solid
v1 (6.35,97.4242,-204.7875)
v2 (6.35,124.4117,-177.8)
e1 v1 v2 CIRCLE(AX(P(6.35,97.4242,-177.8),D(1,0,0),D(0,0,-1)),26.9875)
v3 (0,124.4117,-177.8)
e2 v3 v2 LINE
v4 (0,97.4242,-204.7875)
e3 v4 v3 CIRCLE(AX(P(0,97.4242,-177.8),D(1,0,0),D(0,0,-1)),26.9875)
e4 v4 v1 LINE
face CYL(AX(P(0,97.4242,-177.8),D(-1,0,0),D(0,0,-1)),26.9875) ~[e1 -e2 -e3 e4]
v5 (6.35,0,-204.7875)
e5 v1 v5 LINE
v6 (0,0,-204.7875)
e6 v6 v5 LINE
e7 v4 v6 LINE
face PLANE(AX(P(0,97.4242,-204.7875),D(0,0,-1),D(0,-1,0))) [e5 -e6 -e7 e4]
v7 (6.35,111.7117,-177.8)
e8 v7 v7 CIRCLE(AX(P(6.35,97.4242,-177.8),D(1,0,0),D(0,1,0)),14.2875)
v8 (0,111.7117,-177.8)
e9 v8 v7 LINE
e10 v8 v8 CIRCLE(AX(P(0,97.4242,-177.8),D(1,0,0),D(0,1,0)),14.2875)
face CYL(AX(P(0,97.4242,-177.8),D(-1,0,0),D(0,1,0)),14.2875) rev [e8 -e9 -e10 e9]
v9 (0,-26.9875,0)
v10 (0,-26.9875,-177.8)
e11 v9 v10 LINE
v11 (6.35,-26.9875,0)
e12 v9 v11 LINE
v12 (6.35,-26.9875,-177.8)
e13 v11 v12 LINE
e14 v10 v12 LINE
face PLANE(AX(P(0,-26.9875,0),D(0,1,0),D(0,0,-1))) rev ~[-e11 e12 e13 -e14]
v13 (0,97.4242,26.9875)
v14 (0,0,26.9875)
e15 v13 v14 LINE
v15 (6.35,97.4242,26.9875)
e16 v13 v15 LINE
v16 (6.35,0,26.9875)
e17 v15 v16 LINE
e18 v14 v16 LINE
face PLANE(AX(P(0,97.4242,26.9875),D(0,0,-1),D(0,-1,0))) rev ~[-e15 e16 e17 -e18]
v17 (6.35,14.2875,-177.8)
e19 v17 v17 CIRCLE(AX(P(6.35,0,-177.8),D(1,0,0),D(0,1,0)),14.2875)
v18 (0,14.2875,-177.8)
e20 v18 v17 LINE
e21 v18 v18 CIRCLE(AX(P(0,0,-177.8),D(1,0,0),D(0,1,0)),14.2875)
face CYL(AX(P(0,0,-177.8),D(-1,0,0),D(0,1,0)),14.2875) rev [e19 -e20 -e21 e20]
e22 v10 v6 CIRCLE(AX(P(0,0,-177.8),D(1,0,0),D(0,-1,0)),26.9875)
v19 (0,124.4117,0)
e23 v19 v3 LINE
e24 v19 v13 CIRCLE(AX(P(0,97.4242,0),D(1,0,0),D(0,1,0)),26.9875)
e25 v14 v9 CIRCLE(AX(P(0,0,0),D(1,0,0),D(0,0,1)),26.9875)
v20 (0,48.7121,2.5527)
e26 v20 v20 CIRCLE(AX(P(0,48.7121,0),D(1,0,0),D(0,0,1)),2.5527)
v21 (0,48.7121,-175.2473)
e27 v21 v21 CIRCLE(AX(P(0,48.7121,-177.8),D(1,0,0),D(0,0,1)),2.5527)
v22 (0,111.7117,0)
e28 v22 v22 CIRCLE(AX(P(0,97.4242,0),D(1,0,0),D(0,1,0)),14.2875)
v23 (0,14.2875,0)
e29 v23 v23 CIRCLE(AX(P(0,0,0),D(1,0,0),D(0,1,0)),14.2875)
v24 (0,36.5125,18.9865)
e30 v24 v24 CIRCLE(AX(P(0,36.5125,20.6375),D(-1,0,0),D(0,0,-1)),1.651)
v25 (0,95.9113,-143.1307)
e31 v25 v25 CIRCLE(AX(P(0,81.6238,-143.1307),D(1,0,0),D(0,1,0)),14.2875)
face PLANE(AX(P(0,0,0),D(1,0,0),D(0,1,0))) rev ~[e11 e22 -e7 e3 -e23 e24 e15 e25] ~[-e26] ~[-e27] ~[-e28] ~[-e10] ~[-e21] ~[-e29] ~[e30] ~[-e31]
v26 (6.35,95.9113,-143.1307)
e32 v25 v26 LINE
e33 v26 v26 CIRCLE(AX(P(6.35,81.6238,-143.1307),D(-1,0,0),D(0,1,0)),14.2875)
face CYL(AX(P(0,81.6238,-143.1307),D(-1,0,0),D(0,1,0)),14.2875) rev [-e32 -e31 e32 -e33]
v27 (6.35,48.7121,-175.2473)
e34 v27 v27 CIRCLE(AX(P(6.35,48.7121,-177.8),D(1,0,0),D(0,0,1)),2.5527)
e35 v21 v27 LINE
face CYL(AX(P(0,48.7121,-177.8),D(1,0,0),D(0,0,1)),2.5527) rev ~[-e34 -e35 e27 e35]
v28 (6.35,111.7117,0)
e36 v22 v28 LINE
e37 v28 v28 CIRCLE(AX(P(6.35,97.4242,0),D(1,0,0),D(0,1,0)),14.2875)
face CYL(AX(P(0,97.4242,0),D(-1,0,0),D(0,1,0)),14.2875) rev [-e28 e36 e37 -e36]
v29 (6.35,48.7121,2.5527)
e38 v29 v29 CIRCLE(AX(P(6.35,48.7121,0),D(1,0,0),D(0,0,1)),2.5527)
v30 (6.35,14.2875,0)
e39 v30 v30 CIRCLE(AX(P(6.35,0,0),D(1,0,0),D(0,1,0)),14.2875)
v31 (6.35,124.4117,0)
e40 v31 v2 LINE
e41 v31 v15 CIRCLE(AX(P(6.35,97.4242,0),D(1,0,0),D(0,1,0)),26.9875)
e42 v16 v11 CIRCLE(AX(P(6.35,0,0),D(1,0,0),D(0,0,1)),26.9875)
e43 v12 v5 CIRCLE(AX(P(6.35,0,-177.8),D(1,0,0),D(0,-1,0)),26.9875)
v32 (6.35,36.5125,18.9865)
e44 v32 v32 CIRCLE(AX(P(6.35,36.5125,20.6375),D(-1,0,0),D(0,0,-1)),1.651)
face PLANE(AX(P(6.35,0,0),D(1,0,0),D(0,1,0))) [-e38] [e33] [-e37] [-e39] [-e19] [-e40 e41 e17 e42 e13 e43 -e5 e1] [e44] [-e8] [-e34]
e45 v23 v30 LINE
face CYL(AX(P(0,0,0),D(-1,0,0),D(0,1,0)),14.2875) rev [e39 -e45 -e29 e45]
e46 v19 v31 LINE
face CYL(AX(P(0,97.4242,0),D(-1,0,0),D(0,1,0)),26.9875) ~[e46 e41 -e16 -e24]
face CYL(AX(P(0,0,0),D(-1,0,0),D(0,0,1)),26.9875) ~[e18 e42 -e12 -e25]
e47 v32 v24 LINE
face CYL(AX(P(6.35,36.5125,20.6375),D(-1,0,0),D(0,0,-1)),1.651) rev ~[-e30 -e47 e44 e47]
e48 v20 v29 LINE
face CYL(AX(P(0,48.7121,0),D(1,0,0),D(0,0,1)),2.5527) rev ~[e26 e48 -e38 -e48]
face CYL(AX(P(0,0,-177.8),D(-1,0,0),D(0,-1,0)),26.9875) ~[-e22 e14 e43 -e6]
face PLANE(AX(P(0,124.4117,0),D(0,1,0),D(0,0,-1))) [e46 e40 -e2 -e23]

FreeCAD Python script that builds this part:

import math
import FreeCAD as App
import Part
import Sketcher
Q = App.Units.Quantity

doc = App.newDocument("Part")
body = doc.addObject("PartDesign::Body", "Body")

# Sketch on YZ plane
sketch1 = body.newObject("Sketcher::SketchObject", "Sketch")
sketch1.AttachmentSupport = (doc.getObject("YZ_Plane"), [""])
sketch1.MapMode = "FlatFace"
sketch1.addGeometry([
    Part.LineSegment(App.Vector(0, -204.7875, 0), App.Vector(97.4242, -204.7875, 0)),  # 0
    Part.ArcOfCircle(Part.Circle(App.Vector(97.4242, -177.8, 0), App.Vector(0, 0, 1), 26.9875), math.radians(-90), math.radians(0)),  # 1
    Part.LineSegment(App.Vector(124.4117, -177.8, 0), App.Vector(124.4117, 0, 0)),  # 2
    Part.ArcOfCircle(Part.Circle(App.Vector(97.4242, 0, 0), App.Vector(0, 0, 1), 26.9875), math.radians(0), math.radians(90)),  # 3
    Part.LineSegment(App.Vector(97.4242, 26.9875, 0), App.Vector(0, 26.9875, 0)),  # 4
    Part.ArcOfCircle(Part.Circle(App.Vector(0, 0, 0), App.Vector(0, 0, 1), 26.9875), math.radians(90), math.radians(180)),  # 5
    Part.LineSegment(App.Vector(-26.9875, 0, 0), App.Vector(-26.9875, -177.8, 0)),  # 6
    Part.ArcOfCircle(Part.Circle(App.Vector(0, -177.8, 0), App.Vector(0, 0, 1), 26.9875), math.radians(180), math.radians(270)),  # 7
    Part.Circle(App.Vector(0, -177.8, 0), App.Vector(0, 0, 1), 14.2875),  # 8
    Part.Circle(App.Vector(97.4242, -177.8, 0), App.Vector(0, 0, 1), 14.2875),  # 9
    Part.Circle(App.Vector(0, 0, 0), App.Vector(0, 0, 1), 14.2875),  # 10
    Part.Circle(App.Vector(97.4242, 0, 0), App.Vector(0, 0, 1), 14.2875),  # 11
], False)
sketch1.addConstraint([
    Sketcher.Constraint("Tangent", 0, 2, 1, 1),
    Sketcher.Constraint("Tangent", 1, 2, 2, 1),
    Sketcher.Constraint("Tangent", 2, 2, 3, 1),
    Sketcher.Constraint("Tangent", 3, 2, 4, 1),
    Sketcher.Constraint("Tangent", 4, 2, 5, 1),
    Sketcher.Constraint("Tangent", 5, 2, 6, 1),
    Sketcher.Constraint("Tangent", 6, 2, 7, 1),
    Sketcher.Constraint("Tangent", 7, 2, 0, 1),
    Sketcher.Constraint("Horizontal", 0),
    Sketcher.Constraint("Vertical", 2),
    Sketcher.Constraint("Horizontal", 4),
    Sketcher.Constraint("Vertical", 6),
    Sketcher.Constraint("Coincident", 5, 3, -1, 1),
    Sketcher.Constraint("Coincident", 10, 3, -1, 1),
    Sketcher.Constraint("Coincident", 8, 3, 7, 3),
    Sketcher.Constraint("Coincident", 9, 3, 1, 3),
    Sketcher.Constraint("Coincident", 11, 3, 3, 3),
    Sketcher.Constraint("Equal", 1, 3),
    Sketcher.Constraint("Equal", 3, 5),
    Sketcher.Constraint("Equal", 5, 7),
    Sketcher.Constraint("Equal", 8, 9),
    Sketcher.Constraint("Equal", 9, 10),
    Sketcher.Constraint("Equal", 10, 11),
    Sketcher.Constraint("DistanceY", 2, 1, 2, 2, Q("7 in")),
    Sketcher.Constraint("Diameter", 8, Q("1.125 in")),
    Sketcher.Constraint("DistanceX", 0, 1, 0, 2, Q("3.8356 in")),
    Sketcher.Constraint("Radius", 1, Q("1.0625 in")),
])
pad1 = body.newObject("PartDesign::Pad", "Pad")
pad1.Profile = sketch1
pad1.Length = Q("0.25 in")

# Sketch on YZ plane
sketch2 = body.newObject("Sketcher::SketchObject", "Sketch001")
sketch2.AttachmentSupport = (doc.getObject("YZ_Plane"), [""])
sketch2.MapMode = "FlatFace"
sketch2.addGeometry([
    Part.Circle(App.Vector(48.7121, 0, 0), App.Vector(0, 0, 1), 2.5527),
    Part.Circle(App.Vector(48.7121, -177.8, 0), App.Vector(0, 0, 1), 2.5527),
], False)
sketch2.addConstraint([
    Sketcher.Constraint("Equal", 0, 1),
    Sketcher.Constraint("PointOnObject", 0, 3, -1),
    Sketcher.Constraint("Vertical", 0, 3, 1, 3),
    Sketcher.Constraint("Diameter", 0, Q("0.201 in")),
    Sketcher.Constraint("DistanceY", 1, 3, -1, 1, Q("7 in")),
    Sketcher.Constraint("DistanceX", -1, 1, 0, 3, Q("1.9178 in")),
])
doc.recompute()
hole = body.newObject("PartDesign::Hole", "Hole")
hole.Profile = sketch2
hole.ThreadType = "None"
hole.Diameter = Q("0.201 in")
hole.DepthType = "ThroughAll"
hole.Reversed = True

# Sketch on YZ plane
sketch3 = body.newObject("Sketcher::SketchObject", "Sketch002")
sketch3.AttachmentSupport = (doc.getObject("YZ_Plane"), [""])
sketch3.MapMode = "FlatFace"
sketch3.AttachmentOffset = App.Placement(App.Vector(0, 0, 0.25 * 25.4), App.Rotation())
sketch3.addGeometry(Part.Circle(App.Vector(36.5125, 20.6375, 0), App.Vector(0, 0, 1), 1.651), False)
sketch3.addConstraint([
    Sketcher.Constraint("Diameter", 0, Q("0.13 in")),
    Sketcher.Constraint("DistanceX", -1, 1, 0, 3, Q("1.4375 in")),
    Sketcher.Constraint("DistanceY", -1, 1, 0, 3, Q("0.8125 in")),
])
doc.recompute()
hole2 = body.newObject("PartDesign::Hole", "Hole001")
hole2.Profile = sketch3
hole2.ThreadType = "None"
hole2.Diameter = Q("0.13 in")
hole2.DepthType = "ThroughAll"

# Sketch on YZ plane
sketch4 = body.newObject("Sketcher::SketchObject", "Sketch003")
sketch4.AttachmentSupport = (doc.getObject("YZ_Plane"), [""])
sketch4.MapMode = "FlatFace"
sketch4.addGeometry(Part.Circle(App.Vector(81.6238, -143.1307, 0), App.Vector(0, 0, 1), 14.2875), False)
sketch4.addConstraint([
    Sketcher.Constraint("Diameter", 0, Q("1.125 in")),
    Sketcher.Constraint("DistanceX", -1, 1, 0, 3, 81.6238),
    Sketcher.Constraint("DistanceY", 0, 3, -1, 1, 143.1307),
])
pocket1 = body.newObject("PartDesign::Pocket", "Pocket")
pocket1.Profile = sketch4
pocket1.Type = "ThroughAll"
pocket1.Reversed = True

doc.recompute()
